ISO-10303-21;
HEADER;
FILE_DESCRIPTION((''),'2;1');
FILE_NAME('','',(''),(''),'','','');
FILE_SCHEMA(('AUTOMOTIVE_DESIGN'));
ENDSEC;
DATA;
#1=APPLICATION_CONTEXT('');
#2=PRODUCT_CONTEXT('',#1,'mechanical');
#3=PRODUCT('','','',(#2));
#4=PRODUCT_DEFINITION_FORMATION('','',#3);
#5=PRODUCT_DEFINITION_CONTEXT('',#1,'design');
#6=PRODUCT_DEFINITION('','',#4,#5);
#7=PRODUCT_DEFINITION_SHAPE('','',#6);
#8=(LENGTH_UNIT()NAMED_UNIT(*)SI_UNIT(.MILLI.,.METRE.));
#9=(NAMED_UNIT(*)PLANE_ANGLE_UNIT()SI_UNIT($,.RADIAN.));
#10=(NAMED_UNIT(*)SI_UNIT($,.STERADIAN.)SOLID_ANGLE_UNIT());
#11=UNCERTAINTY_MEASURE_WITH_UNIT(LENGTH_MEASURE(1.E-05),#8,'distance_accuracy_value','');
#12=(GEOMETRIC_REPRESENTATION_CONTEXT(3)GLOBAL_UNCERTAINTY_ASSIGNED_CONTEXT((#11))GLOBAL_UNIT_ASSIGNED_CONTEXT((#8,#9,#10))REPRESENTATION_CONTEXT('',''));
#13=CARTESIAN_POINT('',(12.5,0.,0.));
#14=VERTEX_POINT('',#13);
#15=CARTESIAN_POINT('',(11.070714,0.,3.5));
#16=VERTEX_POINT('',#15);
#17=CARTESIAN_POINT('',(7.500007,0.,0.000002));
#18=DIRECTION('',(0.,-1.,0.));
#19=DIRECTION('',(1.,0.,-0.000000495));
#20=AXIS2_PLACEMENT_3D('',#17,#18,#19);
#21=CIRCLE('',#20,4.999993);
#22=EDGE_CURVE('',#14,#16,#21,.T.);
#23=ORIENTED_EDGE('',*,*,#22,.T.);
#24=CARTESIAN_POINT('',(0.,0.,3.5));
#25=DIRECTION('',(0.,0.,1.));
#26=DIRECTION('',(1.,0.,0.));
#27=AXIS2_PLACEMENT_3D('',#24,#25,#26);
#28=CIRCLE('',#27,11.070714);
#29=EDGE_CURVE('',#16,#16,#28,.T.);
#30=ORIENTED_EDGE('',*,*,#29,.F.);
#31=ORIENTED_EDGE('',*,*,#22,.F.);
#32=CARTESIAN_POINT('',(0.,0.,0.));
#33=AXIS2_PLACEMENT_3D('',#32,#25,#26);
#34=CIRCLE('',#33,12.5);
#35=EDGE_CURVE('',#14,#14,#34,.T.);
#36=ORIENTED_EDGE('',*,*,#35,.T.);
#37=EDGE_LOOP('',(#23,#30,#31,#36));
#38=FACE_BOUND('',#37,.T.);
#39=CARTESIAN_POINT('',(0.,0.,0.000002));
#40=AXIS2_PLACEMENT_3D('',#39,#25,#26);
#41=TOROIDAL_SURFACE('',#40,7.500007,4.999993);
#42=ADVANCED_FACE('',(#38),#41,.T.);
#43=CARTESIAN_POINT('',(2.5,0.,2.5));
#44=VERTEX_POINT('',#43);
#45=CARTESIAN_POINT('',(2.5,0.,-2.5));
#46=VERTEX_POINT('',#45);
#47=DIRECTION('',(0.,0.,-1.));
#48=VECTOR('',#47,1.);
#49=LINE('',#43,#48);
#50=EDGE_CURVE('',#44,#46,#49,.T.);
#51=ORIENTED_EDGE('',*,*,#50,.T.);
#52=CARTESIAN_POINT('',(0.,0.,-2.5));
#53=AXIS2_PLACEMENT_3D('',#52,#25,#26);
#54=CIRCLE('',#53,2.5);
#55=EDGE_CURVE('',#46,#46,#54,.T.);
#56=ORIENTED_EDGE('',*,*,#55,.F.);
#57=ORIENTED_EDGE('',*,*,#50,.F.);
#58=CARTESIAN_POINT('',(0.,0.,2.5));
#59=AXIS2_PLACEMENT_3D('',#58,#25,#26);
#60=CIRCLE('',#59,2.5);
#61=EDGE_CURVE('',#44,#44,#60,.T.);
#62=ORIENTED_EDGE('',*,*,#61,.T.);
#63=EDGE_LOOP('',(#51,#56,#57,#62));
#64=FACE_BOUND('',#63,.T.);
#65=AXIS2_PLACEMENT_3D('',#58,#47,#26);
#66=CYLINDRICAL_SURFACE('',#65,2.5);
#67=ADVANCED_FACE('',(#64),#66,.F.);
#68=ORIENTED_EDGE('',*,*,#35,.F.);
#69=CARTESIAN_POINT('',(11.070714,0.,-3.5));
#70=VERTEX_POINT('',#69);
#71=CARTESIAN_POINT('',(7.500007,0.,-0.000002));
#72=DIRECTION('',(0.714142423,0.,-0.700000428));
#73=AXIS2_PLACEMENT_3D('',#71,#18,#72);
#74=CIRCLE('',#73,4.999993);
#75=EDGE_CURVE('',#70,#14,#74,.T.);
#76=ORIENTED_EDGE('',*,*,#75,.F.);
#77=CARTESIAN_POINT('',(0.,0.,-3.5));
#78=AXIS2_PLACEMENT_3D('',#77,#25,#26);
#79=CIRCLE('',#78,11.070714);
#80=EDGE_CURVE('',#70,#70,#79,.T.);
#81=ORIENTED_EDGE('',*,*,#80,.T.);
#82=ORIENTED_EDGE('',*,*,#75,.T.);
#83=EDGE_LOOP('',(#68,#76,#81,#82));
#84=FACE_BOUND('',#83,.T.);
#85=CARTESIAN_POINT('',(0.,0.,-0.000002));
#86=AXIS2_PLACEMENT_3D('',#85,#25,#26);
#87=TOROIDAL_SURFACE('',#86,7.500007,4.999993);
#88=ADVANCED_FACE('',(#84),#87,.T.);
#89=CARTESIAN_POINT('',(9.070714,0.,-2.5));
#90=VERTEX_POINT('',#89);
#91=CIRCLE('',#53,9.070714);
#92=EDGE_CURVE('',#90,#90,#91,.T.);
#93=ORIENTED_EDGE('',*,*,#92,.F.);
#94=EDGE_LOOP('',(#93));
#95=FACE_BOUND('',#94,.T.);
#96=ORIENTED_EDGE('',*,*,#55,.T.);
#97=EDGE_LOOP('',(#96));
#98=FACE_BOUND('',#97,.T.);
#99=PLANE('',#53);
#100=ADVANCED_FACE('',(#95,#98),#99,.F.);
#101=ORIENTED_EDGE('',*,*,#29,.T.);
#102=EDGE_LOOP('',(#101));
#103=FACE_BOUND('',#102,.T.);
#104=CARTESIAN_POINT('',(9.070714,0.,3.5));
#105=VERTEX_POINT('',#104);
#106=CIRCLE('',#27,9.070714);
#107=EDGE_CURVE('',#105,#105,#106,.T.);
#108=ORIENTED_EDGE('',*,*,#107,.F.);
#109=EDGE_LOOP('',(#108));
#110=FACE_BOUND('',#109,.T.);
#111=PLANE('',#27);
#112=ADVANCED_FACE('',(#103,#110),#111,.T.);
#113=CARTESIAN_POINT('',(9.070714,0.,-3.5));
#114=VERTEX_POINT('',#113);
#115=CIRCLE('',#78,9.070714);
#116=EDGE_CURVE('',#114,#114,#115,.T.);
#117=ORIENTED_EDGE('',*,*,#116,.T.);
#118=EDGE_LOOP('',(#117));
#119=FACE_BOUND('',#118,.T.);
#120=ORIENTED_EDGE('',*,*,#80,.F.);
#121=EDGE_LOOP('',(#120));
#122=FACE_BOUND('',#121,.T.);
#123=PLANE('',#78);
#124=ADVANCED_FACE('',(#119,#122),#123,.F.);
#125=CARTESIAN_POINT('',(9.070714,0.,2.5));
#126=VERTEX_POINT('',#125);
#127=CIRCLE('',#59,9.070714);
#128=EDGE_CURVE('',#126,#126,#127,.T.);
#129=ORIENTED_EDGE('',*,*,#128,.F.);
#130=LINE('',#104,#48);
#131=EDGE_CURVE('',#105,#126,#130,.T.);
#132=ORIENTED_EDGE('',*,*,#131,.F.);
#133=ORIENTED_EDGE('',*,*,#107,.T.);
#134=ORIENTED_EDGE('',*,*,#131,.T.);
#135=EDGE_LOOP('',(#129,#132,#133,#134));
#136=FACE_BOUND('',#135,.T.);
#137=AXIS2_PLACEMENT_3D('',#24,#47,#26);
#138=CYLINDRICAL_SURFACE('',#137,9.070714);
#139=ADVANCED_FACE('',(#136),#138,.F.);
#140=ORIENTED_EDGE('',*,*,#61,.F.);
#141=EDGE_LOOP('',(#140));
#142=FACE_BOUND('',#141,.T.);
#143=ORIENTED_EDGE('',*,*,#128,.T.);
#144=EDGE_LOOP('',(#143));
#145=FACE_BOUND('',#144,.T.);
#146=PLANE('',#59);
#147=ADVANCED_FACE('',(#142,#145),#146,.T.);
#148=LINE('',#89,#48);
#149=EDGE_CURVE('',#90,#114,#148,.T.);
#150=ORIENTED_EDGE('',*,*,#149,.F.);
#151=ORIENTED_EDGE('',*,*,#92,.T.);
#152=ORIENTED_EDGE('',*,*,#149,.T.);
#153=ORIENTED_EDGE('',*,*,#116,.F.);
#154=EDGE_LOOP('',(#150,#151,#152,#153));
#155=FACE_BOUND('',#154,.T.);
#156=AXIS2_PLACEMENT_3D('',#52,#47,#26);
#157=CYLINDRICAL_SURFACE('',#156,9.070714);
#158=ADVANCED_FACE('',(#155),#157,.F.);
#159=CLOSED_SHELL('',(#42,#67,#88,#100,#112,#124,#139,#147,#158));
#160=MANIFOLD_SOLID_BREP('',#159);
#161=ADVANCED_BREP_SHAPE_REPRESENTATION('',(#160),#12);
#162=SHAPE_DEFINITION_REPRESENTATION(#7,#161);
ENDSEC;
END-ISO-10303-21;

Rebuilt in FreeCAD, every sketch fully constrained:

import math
import FreeCAD as App
import Part
import Sketcher

doc = App.newDocument("Part")
body = doc.addObject("PartDesign::Body", "Body")

# Sketch on XZ plane
sketch1 = body.newObject("Sketcher::SketchObject", "Sketch")
sketch1.AttachmentSupport = (doc.getObject("XZ_Plane"), [""])
sketch1.MapMode = "FlatFace"
sketch1.addGeometry(Part.ArcOfCircle(Part.Circle(App.Vector(7.5, 0, 0), App.Vector(0, 0, 1), 5), math.radians(-44), math.radians(0)), False)
sketch1.addGeometry(Part.ArcOfCircle(Part.Circle(App.Vector(7.5, 0, 0), App.Vector(0, 0, 1), 5), math.radians(0), math.radians(44)), False)
sketch1.addGeometry(Part.LineSegment(App.Vector(11.1, 3.5, 0), App.Vector(9.1, 3.5, 0)), False)
sketch1.addGeometry(Part.LineSegment(App.Vector(9.1, 3.5, 0), App.Vector(9.1, 2.5, 0)), False)
sketch1.addGeometry(Part.LineSegment(App.Vector(9.1, 2.5, 0), App.Vector(2.5, 2.5, 0)), False)
sketch1.addGeometry(Part.LineSegment(App.Vector(2.5, 2.5, 0), App.Vector(2.5, -2.5, 0)), False)
sketch1.addGeometry(Part.LineSegment(App.Vector(2.5, -2.5, 0), App.Vector(9.1, -2.5, 0)), False)
sketch1.addGeometry(Part.LineSegment(App.Vector(9.1, -2.5, 0), App.Vector(9.1, -3.5, 0)), False)
sketch1.addGeometry(Part.LineSegment(App.Vector(9.1, -3.5, 0), App.Vector(11.1, -3.5, 0)), False)
sketch1.addConstraint(Sketcher.Constraint("Tangent", 0, 2, 1, 1))
sketch1.addConstraint(Sketcher.Constraint("Coincident", 1, 2, 2, 1))
sketch1.addConstraint(Sketcher.Constraint("Coincident", 2, 2, 3, 1))
sketch1.addConstraint(Sketcher.Constraint("Coincident", 3, 2, 4, 1))
sketch1.addConstraint(Sketcher.Constraint("Coincident", 4, 2, 5, 1))
sketch1.addConstraint(Sketcher.Constraint("Coincident", 5, 2, 6, 1))
sketch1.addConstraint(Sketcher.Constraint("Coincident", 6, 2, 7, 1))
sketch1.addConstraint(Sketcher.Constraint("Coincident", 7, 2, 8, 1))
sketch1.addConstraint(Sketcher.Constraint("Coincident", 8, 2, 0, 1))
sketch1.addConstraint(Sketcher.Constraint("Horizontal", 2))
sketch1.addConstraint(Sketcher.Constraint("Vertical", 3))
sketch1.addConstraint(Sketcher.Constraint("Horizontal", 4))
sketch1.addConstraint(Sketcher.Constraint("Vertical", 5))
sketch1.addConstraint(Sketcher.Constraint("Horizontal", 6))
sketch1.addConstraint(Sketcher.Constraint("Vertical", 7))
sketch1.addConstraint(Sketcher.Constraint("Horizontal", 8))
sketch1.addConstraint(Sketcher.Constraint("Equal", 0, 1))
sketch1.addConstraint(Sketcher.Constraint("Symmetric", 3, 2, 6, 2, -1))
sketch1.addConstraint(Sketcher.Constraint("Symmetric", 1, 2, 8, 2, -1))
sketch1.addConstraint(Sketcher.Constraint("PointOnObject", 0, 2, -1))
sketch1.addConstraint(Sketcher.Constraint("DistanceX", 2, 2, 2, 1, 2.0))
sketch1.addConstraint(Sketcher.Constraint("DistanceY", 3, 2, 3, 1, 1.0))
sketch1.addConstraint(Sketcher.Constraint("DistanceY", 5, 2, 5, 1, 5.0))
sketch1.addConstraint(Sketcher.Constraint("DistanceX", -1, 1, 0, 2, 12.5))
sketch1.addConstraint(Sketcher.Constraint("DistanceX", -1, 1, 4, 2, 2.5))
sketch1.addConstraint(Sketcher.Constraint("Radius", 0, 4.999993))
revolution = body.newObject("PartDesign::Revolution", "Revolution")
revolution.Profile = sketch1
revolution.ReferenceAxis = (sketch1, ["V_Axis"])
revolution.Angle = 360

doc.recompute()
